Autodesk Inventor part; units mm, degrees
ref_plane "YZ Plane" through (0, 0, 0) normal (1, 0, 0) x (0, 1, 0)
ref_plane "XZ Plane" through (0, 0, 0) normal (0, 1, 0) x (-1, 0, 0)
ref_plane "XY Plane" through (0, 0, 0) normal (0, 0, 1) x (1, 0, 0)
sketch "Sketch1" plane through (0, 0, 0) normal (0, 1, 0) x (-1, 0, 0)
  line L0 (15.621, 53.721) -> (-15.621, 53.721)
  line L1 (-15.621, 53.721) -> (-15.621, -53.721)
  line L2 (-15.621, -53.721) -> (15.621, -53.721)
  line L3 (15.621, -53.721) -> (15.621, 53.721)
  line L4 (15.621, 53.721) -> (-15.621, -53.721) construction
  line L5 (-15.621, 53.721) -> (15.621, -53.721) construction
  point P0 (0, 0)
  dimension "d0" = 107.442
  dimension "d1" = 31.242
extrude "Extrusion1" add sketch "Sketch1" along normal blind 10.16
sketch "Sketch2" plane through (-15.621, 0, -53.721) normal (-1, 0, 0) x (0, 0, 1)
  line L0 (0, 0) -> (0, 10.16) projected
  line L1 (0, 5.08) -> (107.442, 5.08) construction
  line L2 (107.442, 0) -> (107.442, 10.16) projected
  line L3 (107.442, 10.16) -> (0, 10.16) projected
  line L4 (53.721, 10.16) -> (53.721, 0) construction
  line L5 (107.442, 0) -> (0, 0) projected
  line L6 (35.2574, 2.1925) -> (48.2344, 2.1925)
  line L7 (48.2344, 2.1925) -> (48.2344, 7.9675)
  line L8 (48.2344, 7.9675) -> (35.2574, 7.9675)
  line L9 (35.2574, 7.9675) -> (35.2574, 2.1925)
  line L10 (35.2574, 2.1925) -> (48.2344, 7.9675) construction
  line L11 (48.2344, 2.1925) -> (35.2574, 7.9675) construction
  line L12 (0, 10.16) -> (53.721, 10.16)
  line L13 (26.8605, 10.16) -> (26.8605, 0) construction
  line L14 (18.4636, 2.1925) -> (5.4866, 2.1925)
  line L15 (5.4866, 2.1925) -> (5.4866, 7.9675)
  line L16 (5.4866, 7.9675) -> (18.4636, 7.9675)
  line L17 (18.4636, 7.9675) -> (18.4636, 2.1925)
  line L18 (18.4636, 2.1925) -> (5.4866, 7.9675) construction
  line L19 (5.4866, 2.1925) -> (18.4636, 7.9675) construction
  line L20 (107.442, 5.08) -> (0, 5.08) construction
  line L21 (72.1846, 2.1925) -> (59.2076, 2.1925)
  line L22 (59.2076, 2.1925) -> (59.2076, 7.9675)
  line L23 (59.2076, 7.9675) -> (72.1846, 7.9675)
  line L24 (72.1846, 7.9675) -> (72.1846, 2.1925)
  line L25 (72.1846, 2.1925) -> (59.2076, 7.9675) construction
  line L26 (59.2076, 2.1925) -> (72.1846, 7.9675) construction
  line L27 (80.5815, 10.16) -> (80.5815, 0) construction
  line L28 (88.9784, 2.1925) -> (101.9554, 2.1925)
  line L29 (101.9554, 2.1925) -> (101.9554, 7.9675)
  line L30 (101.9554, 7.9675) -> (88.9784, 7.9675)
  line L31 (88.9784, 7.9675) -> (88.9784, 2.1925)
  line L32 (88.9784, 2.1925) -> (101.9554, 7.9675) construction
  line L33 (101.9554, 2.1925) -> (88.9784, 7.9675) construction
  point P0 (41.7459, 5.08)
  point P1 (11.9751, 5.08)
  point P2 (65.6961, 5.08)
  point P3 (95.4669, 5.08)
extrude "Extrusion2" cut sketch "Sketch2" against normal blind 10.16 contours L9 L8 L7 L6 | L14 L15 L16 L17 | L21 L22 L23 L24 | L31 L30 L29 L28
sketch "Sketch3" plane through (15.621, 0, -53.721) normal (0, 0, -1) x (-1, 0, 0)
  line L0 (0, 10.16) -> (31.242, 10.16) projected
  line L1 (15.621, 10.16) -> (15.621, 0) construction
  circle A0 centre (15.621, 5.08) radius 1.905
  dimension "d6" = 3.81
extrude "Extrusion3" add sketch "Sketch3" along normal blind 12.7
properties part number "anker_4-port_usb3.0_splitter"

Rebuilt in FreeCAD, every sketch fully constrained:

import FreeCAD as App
import Part
import Sketcher
Q = App.Units.Quantity


def add_polygon(sketch, points):
    """Adds a closed chain of lines whose ends are joined by coincident constraints."""
    first, n = sketch.GeometryCount, len(points)
    for a, b in zip(points, points[1:] + points[:1]):
        sketch.addGeometry(Part.LineSegment(App.Vector(*a, 0), App.Vector(*b, 0)), False)
    for i in range(n):
        sketch.addConstraint(Sketcher.Constraint("Coincident", first + i, 2, first + (i + 1) % n, 1))

doc = App.newDocument("Part")
params = doc.addObject("Spreadsheet::Sheet", "Params")
for row, (alias, value) in enumerate([
    ("sketch1_width", "1.23 in"),
    ("sketch1_height", "4.23 in"),
    ("pad1_length", "0.4 in"),
    ("pocket1_length", "0.4 in"),
    ("sketch3_diameter", "0.15 in"),
    ("pad2_length", "0.5 in"),
], start=1):
    params.set(f"A{row}", alias)
    params.set(f"B{row}", "=" + value)
    params.setAlias(f"B{row}", alias)

body = doc.addObject("PartDesign::Body", "Body")

sketch1 = body.newObject("Sketcher::SketchObject", "Sketch")
sketch1.AttachmentSupport = (doc.getObject("XZ_Plane"), [""])
sketch1.MapMode = "FlatFace"
add_polygon(sketch1, [(-16, -54), (-16, 54), (16, 54), (16, -54)])
sketch1.addConstraint([
    Sketcher.Constraint("Vertical", 0),
    Sketcher.Constraint("Horizontal", 1),
    Sketcher.Constraint("Vertical", 2),
    Sketcher.Constraint("Horizontal", 3),
    Sketcher.Constraint("Symmetric", 0, 2, 2, 2, -1, 1),
    Sketcher.Constraint("DistanceX", 1, 1, 1, 2, Q("1.23 in")),
    Sketcher.Constraint("DistanceY", 0, 1, 0, 2, Q("4.23 in")),
])
sketch1.setExpression("Constraints[9]", "Params.sketch1_width")
sketch1.setExpression("Constraints[10]", "Params.sketch1_height")
pad1 = body.newObject("PartDesign::Pad", "Pad")
pad1.Profile = sketch1
pad1.setExpression("Length", "Params.pad1_length")
pad1.Reversed = True

sketch2 = body.newObject("Sketcher::SketchObject", "Sketch001")
sketch2.AttachmentSupport = (doc.getObject("YZ_Plane"), [""])
sketch2.MapMode = "FlatFace"
sketch2.AttachmentOffset = App.Placement(App.Vector(0, 0, -0.615 * 25.4), App.Rotation())
add_polygon(sketch2, [(8, -18), (2, -18), (2, -5), (8, -5)])
add_polygon(sketch2, [(2, -48), (2, -35), (8, -35), (8, -48)])
add_polygon(sketch2, [(2, 5), (2, 18), (8, 18), (8, 5)])
add_polygon(sketch2, [(8, 35), (2, 35), (2, 48), (8, 48)])
sketch2.addConstraint([
    Sketcher.Constraint("Horizontal", 0),
    Sketcher.Constraint("Vertical", 1),
    Sketcher.Constraint("Horizontal", 2),
    Sketcher.Constraint("Vertical", 3),
    Sketcher.Constraint("Vertical", 4),
    Sketcher.Constraint("Horizontal", 5),
    Sketcher.Constraint("Vertical", 6),
    Sketcher.Constraint("Horizontal", 7),
    Sketcher.Constraint("Vertical", 8),
    Sketcher.Constraint("Horizontal", 9),
    Sketcher.Constraint("Vertical", 10),
    Sketcher.Constraint("Horizontal", 11),
    Sketcher.Constraint("Horizontal", 12),
    Sketcher.Constraint("Vertical", 13),
    Sketcher.Constraint("Horizontal", 14),
    Sketcher.Constraint("Vertical", 15),
    Sketcher.Constraint("Symmetric", 0, 2, 8, 2, -1),
    Sketcher.Constraint("Symmetric", 2, 2, 10, 2, -1),
    Sketcher.Constraint("Symmetric", 4, 2, 12, 2, -1),
    Sketcher.Constraint("Symmetric", 6, 2, 14, 2, -1),
    Sketcher.Constraint("Vertical", 1, 2, 4, 2),
    Sketcher.Constraint("Vertical", 3, 2, 5, 2),
    Sketcher.Constraint("Equal", 3, 4),
    Sketcher.Constraint("DistanceY", 1, 1, 1, 2, Q("0.5109 in")),
    Sketcher.Constraint("DistanceY", 1, 2, -1, 1, Q("0.216 in")),
    Sketcher.Constraint("DistanceY", 6, 2, -1, 1, Q("1.899 in")),
    Sketcher.Constraint("DistanceX", 0, 2, 0, 1, Q("5.775 mm")),
    Sketcher.Constraint("DistanceX", -1, 1, 0, 2, Q("2.1925 mm")),
])
pocket1 = body.newObject("PartDesign::Pocket", "Pocket")
pocket1.Profile = sketch2
pocket1.setExpression("Length", "Params.pocket1_length")
pocket1.Reversed = True

sketch3 = body.newObject("Sketcher::SketchObject", "Sketch002")
sketch3.AttachmentSupport = (doc.getObject("XY_Plane"), [""])
sketch3.MapMode = "FlatFace"
sketch3.AttachmentOffset = App.Placement(App.Vector(0, 0, -2.115 * 25.4), App.Rotation())
sketch3.addGeometry(Part.Circle(App.Vector(0, 5.1, 0), App.Vector(0, 0, 1), 1.9), False)
sketch3.addConstraint([
    Sketcher.Constraint("PointOnObject", 0, 3, -2),
    Sketcher.Constraint("Diameter", 0, Q("0.15 in")),
    Sketcher.Constraint("DistanceY", -1, 1, 0, 3, Q("0.2 in")),
])
sketch3.setExpression("Constraints[1]", "Params.sketch3_diameter")
pad2 = body.newObject("PartDesign::Pad", "Pad001")
pad2.Profile = sketch3
pad2.setExpression("Length", "Params.pad2_length")
pad2.Reversed = True

doc.recompute()
